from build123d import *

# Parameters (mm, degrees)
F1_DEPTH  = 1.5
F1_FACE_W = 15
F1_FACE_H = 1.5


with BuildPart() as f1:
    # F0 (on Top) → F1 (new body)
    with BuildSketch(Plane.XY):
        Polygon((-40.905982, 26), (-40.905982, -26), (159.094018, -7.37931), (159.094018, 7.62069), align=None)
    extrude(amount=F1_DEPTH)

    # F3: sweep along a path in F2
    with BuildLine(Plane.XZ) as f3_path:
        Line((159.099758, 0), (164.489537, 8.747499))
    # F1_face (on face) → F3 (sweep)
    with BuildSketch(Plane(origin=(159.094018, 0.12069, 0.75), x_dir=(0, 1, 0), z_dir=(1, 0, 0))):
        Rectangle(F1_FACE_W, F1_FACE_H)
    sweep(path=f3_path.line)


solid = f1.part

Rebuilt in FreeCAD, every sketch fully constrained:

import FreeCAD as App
import Part
import Sketcher

V = App.Vector
Q = App.Units.Quantity


def add_polygon(sketch, points):
    """Adds a closed chain of lines whose ends are joined by coincident constraints."""
    first, n = sketch.GeometryCount, len(points)
    for a, b in zip(points, points[1:] + points[:1]):
        sketch.addGeometry(Part.LineSegment(App.Vector(*a, 0), App.Vector(*b, 0)), False)
    for i in range(n):
        sketch.addConstraint(Sketcher.Constraint("Coincident", first + i, 2, first + (i + 1) % n, 1))

doc = App.newDocument("Part")
params = doc.addObject("Spreadsheet::Sheet", "Params")
for row, (alias, value) in enumerate([
    ("sketch1_height", "52 mm"),
    ("sketch1_height2", "15 mm"),
    ("pad1_length", "1.5 mm"),
    ("sketch2_width", "15 mm"),
    ("sketch2_height", "1.5 mm"),
], start=1):
    params.set(f"A{row}", alias)
    params.set(f"B{row}", "=" + value)
    params.setAlias(f"B{row}", alias)

body = doc.addObject("PartDesign::Body", "Body")

sketch1 = body.newObject("Sketcher::SketchObject", "Sketch")
sketch1.AttachmentSupport = (doc.getObject("XY_Plane"), [""])
sketch1.MapMode = "FlatFace"
add_polygon(sketch1, [(-41, 26), (-41, -26), (159, -7), (159, 8)])
sketch1.addConstraint([
    Sketcher.Constraint("Vertical", 0),
    Sketcher.Constraint("Vertical", 2),
    Sketcher.Constraint("DistanceY", 0, 2, 0, 1, Q("52 mm")),
    Sketcher.Constraint("DistanceY", 2, 1, 2, 2, Q("15 mm")),
    Sketcher.Constraint("DistanceY", 0, 2, -1, 1, Q("26 mm")),
    Sketcher.Constraint("DistanceX", 0, 2, 1, 2, Q("200 mm")),
    Sketcher.Constraint("DistanceX", -1, 1, 1, 2, Q("159.094018 mm")),
    Sketcher.Constraint("DistanceY", 1, 2, -1, 1, Q("7.37931 mm")),
])
sketch1.setExpression("Constraints[6]", "Params.sketch1_height")
sketch1.setExpression("Constraints[7]", "Params.sketch1_height2")
pad1 = body.newObject("PartDesign::Pad", "Pad")
pad1.Profile = sketch1
pad1.setExpression("Length", "Params.pad1_length")

sketch2 = body.newObject("Sketcher::SketchObject", "Sketch001")
sketch2.AttachmentSupport = (doc.getObject("YZ_Plane"), [""])
sketch2.MapMode = "FlatFace"
sketch2.AttachmentOffset = App.Placement(V(0, 0, 159.094018), App.Rotation())
add_polygon(sketch2, [(-7.4, 1.5), (-7.4, 0), (7.6, 0), (7.6, 1.5)])
sketch2.addConstraint([
    Sketcher.Constraint("Vertical", 0),
    Sketcher.Constraint("Horizontal", 1),
    Sketcher.Constraint("Vertical", 2),
    Sketcher.Constraint("Horizontal", 3),
    Sketcher.Constraint("PointOnObject", 0, 2, -1),
    Sketcher.Constraint("DistanceX", 1, 1, 1, 2, Q("15 mm")),
    Sketcher.Constraint("DistanceY", 0, 2, 0, 1, Q("1.5 mm")),
    Sketcher.Constraint("DistanceX", 0, 2, -1, 1, Q("7.37931 mm")),
])
sketch2.setExpression("Constraints[9]", "Params.sketch2_width")
sketch2.setExpression("Constraints[10]", "Params.sketch2_height")

sketch3 = body.newObject("Sketcher::SketchObject", "Sketch002")
sketch3.Placement = App.Placement(V(115.319606, 0, -71.054274), App.Rotation(V(0.52457051, 0, 0.851367007), V(0, 1.000000001, 0), V(-0.851367007, 0, 0.52457051), "ZXY"))
sketch3.addGeometry(Part.LineSegment(V(83, 0, 0), V(94, 0, 0)), False)
sketch3.addConstraint([
    Sketcher.Constraint("Horizontal", 0),
    Sketcher.Constraint("PointOnObject", 0, 1, -1),
    Sketcher.Constraint("DistanceX", 0, 1, 0, 2, Q("10.274651 mm")),
    Sketcher.Constraint("DistanceX", -1, 1, 0, 1, Q("83.459041 mm")),
])
doc.recompute()

additivepipe = body.newObject("PartDesign::AdditivePipe", "AdditivePipe")
additivepipe.Profile = sketch2
additivepipe.Spine = (sketch3, ["Edge1"])

doc.recompute()
